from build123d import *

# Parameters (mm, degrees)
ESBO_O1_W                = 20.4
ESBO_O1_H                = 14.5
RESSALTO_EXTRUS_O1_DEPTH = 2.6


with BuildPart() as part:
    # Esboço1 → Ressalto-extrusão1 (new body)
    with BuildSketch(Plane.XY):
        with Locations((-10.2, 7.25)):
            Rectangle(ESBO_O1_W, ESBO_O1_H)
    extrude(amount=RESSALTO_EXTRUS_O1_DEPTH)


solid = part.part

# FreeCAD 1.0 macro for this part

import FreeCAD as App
import Part
import Sketcher


def add_polygon(sketch, points):
    """Adds a closed chain of lines whose ends are joined by coincident constraints."""
    first, n = sketch.GeometryCount, len(points)
    for a, b in zip(points, points[1:] + points[:1]):
        sketch.addGeometry(Part.LineSegment(App.Vector(*a, 0), App.Vector(*b, 0)), False)
    for i in range(n):
        sketch.addConstraint(Sketcher.Constraint("Coincident", first + i, 2, first + (i + 1) % n, 1))

doc = App.newDocument("Part")
body = doc.addObject("PartDesign::Body", "Body")

sketch1 = body.newObject("Sketcher::SketchObject", "Sketch")
sketch1.AttachmentSupport = (doc.getObject("XY_Plane"), [""])
sketch1.MapMode = "FlatFace"
add_polygon(sketch1, [(-20, 14), (-20, 0), (0, 0), (0, 14)])
sketch1.addConstraint(Sketcher.Constraint("Vertical", 0))
sketch1.addConstraint(Sketcher.Constraint("Horizontal", 1))
sketch1.addConstraint(Sketcher.Constraint("Vertical", 2))
sketch1.addConstraint(Sketcher.Constraint("Horizontal", 3))
sketch1.addConstraint(Sketcher.Constraint("Coincident", 1, 2, -1, 1))
sketch1.addConstraint(Sketcher.Constraint("DistanceX", 1, 1, 1, 2, 20.4))
sketch1.addConstraint(Sketcher.Constraint("DistanceY", 0, 2, 0, 1, 14.5))
pad1 = body.newObject("PartDesign::Pad", "Pad")
pad1.Profile = sketch1
pad1.Length = 2.6

doc.recompute()
